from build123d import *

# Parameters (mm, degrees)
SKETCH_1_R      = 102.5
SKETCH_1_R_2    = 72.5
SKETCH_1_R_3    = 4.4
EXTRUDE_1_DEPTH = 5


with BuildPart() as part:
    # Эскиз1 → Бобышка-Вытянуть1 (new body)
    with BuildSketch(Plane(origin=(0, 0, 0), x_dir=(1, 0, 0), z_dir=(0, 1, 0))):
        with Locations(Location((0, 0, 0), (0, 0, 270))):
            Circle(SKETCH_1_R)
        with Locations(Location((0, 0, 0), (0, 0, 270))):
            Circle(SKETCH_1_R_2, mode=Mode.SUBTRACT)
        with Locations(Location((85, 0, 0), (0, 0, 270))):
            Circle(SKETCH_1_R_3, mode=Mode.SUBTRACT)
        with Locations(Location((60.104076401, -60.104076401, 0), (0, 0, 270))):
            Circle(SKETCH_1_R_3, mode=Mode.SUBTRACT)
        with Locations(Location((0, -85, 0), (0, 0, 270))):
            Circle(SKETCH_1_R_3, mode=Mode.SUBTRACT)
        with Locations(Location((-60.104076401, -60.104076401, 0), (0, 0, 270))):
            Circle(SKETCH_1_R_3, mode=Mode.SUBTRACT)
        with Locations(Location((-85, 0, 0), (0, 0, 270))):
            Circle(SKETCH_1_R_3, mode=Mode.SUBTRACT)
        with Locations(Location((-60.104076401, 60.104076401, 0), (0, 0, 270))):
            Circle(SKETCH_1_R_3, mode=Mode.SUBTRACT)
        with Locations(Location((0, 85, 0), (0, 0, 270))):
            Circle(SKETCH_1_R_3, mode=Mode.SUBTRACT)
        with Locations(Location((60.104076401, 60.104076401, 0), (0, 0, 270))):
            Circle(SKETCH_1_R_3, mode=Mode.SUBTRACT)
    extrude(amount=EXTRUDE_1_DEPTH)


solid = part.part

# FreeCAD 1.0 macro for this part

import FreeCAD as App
import Part
import Sketcher
from FreeCAD import Vector

doc = App.newDocument("Part")
body = doc.addObject("PartDesign::Body", "Body")

sketch1 = body.newObject("Sketcher::SketchObject", "Sketch")
sketch1.AttachmentSupport = (doc.getObject("XZ_Plane"), [""])
sketch1.MapMode = "FlatFace"
sketch1.addGeometry(Part.Circle(Vector(0, 0, 0), Vector(0, 0, 1), 102.5), False)
sketch1.addGeometry(Part.Circle(Vector(-60.1, -60.1, 0), Vector(0, 0, 1), 4.4), False)
sketch1.addGeometry(Part.Circle(Vector(0, -85, 0), Vector(0, 0, 1), 4.4), False)
sketch1.addGeometry(Part.Circle(Vector(-85, 0, 0), Vector(0, 0, 1), 4.4), False)
sketch1.addGeometry(Part.Circle(Vector(-60.1, 60.1, 0), Vector(0, 0, 1), 4.4), False)
sketch1.addGeometry(Part.Circle(Vector(60.1, -60.1, 0), Vector(0, 0, 1), 4.4), False)
sketch1.addGeometry(Part.Circle(Vector(85, 0, 0), Vector(0, 0, 1), 4.4), False)
sketch1.addGeometry(Part.Circle(Vector(0, 0, 0), Vector(0, 0, 1), 72.5), False)
sketch1.addGeometry(Part.Circle(Vector(0, 85, 0), Vector(0, 0, 1), 4.4), False)
sketch1.addGeometry(Part.Circle(Vector(60.1, 60.1, 0), Vector(0, 0, 1), 4.4), False)
sketch1.addConstraint(Sketcher.Constraint("Coincident", 0, 3, -1, 1))
sketch1.addConstraint(Sketcher.Constraint("Coincident", 7, 3, -1, 1))
sketch1.addConstraint(Sketcher.Constraint("Equal", 1, 2))
sketch1.addConstraint(Sketcher.Constraint("Equal", 2, 3))
sketch1.addConstraint(Sketcher.Constraint("Equal", 3, 4))
sketch1.addConstraint(Sketcher.Constraint("Equal", 4, 5))
sketch1.addConstraint(Sketcher.Constraint("Equal", 5, 6))
sketch1.addConstraint(Sketcher.Constraint("Equal", 6, 8))
sketch1.addConstraint(Sketcher.Constraint("Equal", 8, 9))
sketch1.addConstraint(Sketcher.Constraint("Symmetric", 4, 3, 5, 3, -1, 1))
sketch1.addConstraint(Sketcher.Constraint("Symmetric", 3, 3, 6, 3, -1, 1))
sketch1.addConstraint(Sketcher.Constraint("Symmetric", 2, 3, 8, 3, -1, 1))
sketch1.addConstraint(Sketcher.Constraint("Symmetric", 1, 3, 9, 3, -1, 1))
sketch1.addConstraint(Sketcher.Constraint("Symmetric", 1, 3, 5, 3, -2))
sketch1.addConstraint(Sketcher.Constraint("PointOnObject", 2, 3, -2))
sketch1.addConstraint(Sketcher.Constraint("PointOnObject", 3, 3, -1))
sketch1.addConstraint(Sketcher.Constraint("Diameter", 0, 205.0))
sketch1.addConstraint(Sketcher.Constraint("Diameter", 7, 145.0))
sketch1.addConstraint(Sketcher.Constraint("Diameter", 1, 8.8))
sketch1.addConstraint(Sketcher.Constraint("DistanceY", 2, 3, -1, 1, 85.0))
sketch1.addConstraint(Sketcher.Constraint("DistanceX", 3, 3, -1, 1, 85.0))
sketch1.addConstraint(Sketcher.Constraint("DistanceX", 1, 3, -1, 1, 60.104076))
sketch1.addConstraint(Sketcher.Constraint("DistanceY", 1, 3, -1, 1, 60.104076))
pad1 = body.newObject("PartDesign::Pad", "Pad")
pad1.Profile = sketch1
pad1.Length = 5
pad1.Reversed = True

doc.recompute()
